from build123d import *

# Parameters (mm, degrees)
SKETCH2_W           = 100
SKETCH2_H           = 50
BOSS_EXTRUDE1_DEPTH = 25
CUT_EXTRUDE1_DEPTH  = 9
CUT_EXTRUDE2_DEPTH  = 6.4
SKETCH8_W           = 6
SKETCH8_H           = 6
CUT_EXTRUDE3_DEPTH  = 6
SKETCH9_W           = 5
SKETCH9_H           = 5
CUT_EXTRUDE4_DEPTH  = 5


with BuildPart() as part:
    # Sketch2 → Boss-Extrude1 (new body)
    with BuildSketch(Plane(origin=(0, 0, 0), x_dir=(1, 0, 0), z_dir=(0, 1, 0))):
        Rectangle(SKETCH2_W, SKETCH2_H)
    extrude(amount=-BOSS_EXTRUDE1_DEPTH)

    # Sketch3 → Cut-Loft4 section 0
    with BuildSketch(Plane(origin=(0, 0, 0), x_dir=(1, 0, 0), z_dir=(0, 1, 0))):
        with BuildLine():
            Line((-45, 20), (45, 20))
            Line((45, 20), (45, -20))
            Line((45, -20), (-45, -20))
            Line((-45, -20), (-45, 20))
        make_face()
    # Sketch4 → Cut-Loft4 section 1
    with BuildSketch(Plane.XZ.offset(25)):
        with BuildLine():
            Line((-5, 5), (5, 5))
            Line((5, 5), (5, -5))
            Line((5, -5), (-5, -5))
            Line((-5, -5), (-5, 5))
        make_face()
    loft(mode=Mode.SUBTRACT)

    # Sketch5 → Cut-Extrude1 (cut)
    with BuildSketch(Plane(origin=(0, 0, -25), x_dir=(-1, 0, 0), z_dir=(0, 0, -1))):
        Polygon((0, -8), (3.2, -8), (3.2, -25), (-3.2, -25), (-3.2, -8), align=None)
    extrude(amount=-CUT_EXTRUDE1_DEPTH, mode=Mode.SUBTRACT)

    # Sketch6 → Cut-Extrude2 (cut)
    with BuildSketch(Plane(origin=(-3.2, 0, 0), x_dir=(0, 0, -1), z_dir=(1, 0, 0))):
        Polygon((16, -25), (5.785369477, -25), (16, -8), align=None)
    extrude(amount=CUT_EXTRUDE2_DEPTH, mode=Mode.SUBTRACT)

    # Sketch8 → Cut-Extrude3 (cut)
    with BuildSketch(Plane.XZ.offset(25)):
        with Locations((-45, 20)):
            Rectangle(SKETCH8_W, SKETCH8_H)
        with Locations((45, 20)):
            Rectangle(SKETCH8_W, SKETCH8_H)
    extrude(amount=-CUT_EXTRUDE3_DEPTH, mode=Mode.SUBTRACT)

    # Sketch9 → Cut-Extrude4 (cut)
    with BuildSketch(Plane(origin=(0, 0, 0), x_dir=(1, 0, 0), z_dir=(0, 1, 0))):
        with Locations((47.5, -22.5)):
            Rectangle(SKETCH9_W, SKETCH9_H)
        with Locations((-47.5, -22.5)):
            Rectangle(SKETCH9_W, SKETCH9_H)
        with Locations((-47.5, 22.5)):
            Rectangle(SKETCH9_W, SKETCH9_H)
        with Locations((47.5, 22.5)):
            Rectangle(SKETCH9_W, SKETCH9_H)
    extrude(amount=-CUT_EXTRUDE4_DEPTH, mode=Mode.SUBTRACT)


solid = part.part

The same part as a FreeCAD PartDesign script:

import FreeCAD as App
import Part
import Sketcher
from FreeCAD import Vector
Q = App.Units.Quantity

doc = App.newDocument("Part")
body = doc.addObject("PartDesign::Body", "Body")

sketch1 = body.newObject("Sketcher::SketchObject", "Sketch")
sketch1.AttachmentSupport = (doc.getObject("XZ_Plane"), [""])
sketch1.MapMode = "FlatFace"
sketch1.addGeometry([
    Part.LineSegment(Vector(-50, -25, 0), Vector(-50, 25, 0)),
    Part.LineSegment(Vector(-50, 25, 0), Vector(50, 25, 0)),
    Part.LineSegment(Vector(50, 25, 0), Vector(50, -25, 0)),
    Part.LineSegment(Vector(50, -25, 0), Vector(-50, -25, 0)),
], False)
sketch1.addConstraint([
    Sketcher.Constraint("Coincident", 0, 2, 1, 1),
    Sketcher.Constraint("Coincident", 1, 2, 2, 1),
    Sketcher.Constraint("Coincident", 2, 2, 3, 1),
    Sketcher.Constraint("Coincident", 3, 2, 0, 1),
    Sketcher.Constraint("Vertical", 0),
    Sketcher.Constraint("Horizontal", 1),
    Sketcher.Constraint("Vertical", 2),
    Sketcher.Constraint("Horizontal", 3),
    Sketcher.Constraint("Symmetric", 0, 2, 2, 2, -1, 1),
    Sketcher.Constraint("DistanceX", 1, 1, 1, 2, Q("100 mm")),
    Sketcher.Constraint("DistanceY", 0, 1, 0, 2, Q("50 mm")),
])
pad1 = body.newObject("PartDesign::Pad", "Pad")
pad1.Profile = sketch1
pad1.Length = 25

sketch2 = body.newObject("Sketcher::SketchObject", "Sketch001")
sketch2.AttachmentSupport = (doc.getObject("XZ_Plane"), [""])
sketch2.MapMode = "FlatFace"
sketch2.addGeometry([
    Part.LineSegment(Vector(45, -20, 0), Vector(-45, -20, 0)),
    Part.LineSegment(Vector(-45, -20, 0), Vector(-45, 20, 0)),
    Part.LineSegment(Vector(-45, 20, 0), Vector(45, 20, 0)),
    Part.LineSegment(Vector(45, 20, 0), Vector(45, -20, 0)),
], False)
sketch2.addConstraint([
    Sketcher.Constraint("Coincident", 0, 2, 1, 1),
    Sketcher.Constraint("Coincident", 1, 2, 2, 1),
    Sketcher.Constraint("Coincident", 2, 2, 3, 1),
    Sketcher.Constraint("Coincident", 3, 2, 0, 1),
    Sketcher.Constraint("Horizontal", 0),
    Sketcher.Constraint("Vertical", 1),
    Sketcher.Constraint("Horizontal", 2),
    Sketcher.Constraint("Vertical", 3),
    Sketcher.Constraint("Symmetric", 0, 2, 2, 2, -1, 1),
    Sketcher.Constraint("DistanceX", 0, 2, 0, 1, Q("90 mm")),
    Sketcher.Constraint("DistanceY", 1, 1, 1, 2, Q("40 mm")),
])

sketch3 = body.newObject("Sketcher::SketchObject", "Sketch002")
sketch3.AttachmentSupport = (doc.getObject("XZ_Plane"), [""])
sketch3.MapMode = "FlatFace"
sketch3.AttachmentOffset = App.Placement(Vector(0, 0, 25), App.Rotation())
sketch3.addGeometry([
    Part.LineSegment(Vector(5, 5, 0), Vector(-5, 5, 0)),
    Part.LineSegment(Vector(-5, 5, 0), Vector(-5, -5, 0)),
    Part.LineSegment(Vector(-5, -5, 0), Vector(5, -5, 0)),
    Part.LineSegment(Vector(5, -5, 0), Vector(5, 5, 0)),
], False)
sketch3.addConstraint([
    Sketcher.Constraint("Coincident", 0, 2, 1, 1),
    Sketcher.Constraint("Coincident", 1, 2, 2, 1),
    Sketcher.Constraint("Coincident", 2, 2, 3, 1),
    Sketcher.Constraint("Coincident", 3, 2, 0, 1),
    Sketcher.Constraint("Horizontal", 0),
    Sketcher.Constraint("Vertical", 1),
    Sketcher.Constraint("Horizontal", 2),
    Sketcher.Constraint("Vertical", 3),
    Sketcher.Constraint("Symmetric", 0, 2, 2, 2, -1, 1),
    Sketcher.Constraint("Equal", 2, 1),
    Sketcher.Constraint("DistanceX", 0, 2, 0, 1, Q("10 mm")),
])

subtractiveloft = body.newObject("PartDesign::SubtractiveLoft", "SubtractiveLoft")
subtractiveloft.Profile = sketch2
subtractiveloft.Sections = [sketch3]

sketch4 = body.newObject("Sketcher::SketchObject", "Sketch003")
sketch4.AttachmentSupport = (doc.getObject("XY_Plane"), [""])
sketch4.MapMode = "FlatFace"
sketch4.AttachmentOffset = App.Placement(Vector(0, 0, -25), App.Rotation())
sketch4.addGeometry([
    Part.LineSegment(Vector(-3, -8, 0), Vector(3, -8, 0)),
    Part.LineSegment(Vector(3, -8, 0), Vector(3, -25, 0)),
    Part.LineSegment(Vector(3, -25, 0), Vector(-3, -25, 0)),
    Part.LineSegment(Vector(-3, -25, 0), Vector(-3, -8, 0)),
], False)
sketch4.addConstraint([
    Sketcher.Constraint("Coincident", 0, 2, 1, 1),
    Sketcher.Constraint("Coincident", 1, 2, 2, 1),
    Sketcher.Constraint("Coincident", 2, 2, 3, 1),
    Sketcher.Constraint("Coincident", 3, 2, 0, 1),
    Sketcher.Constraint("Horizontal", 0),
    Sketcher.Constraint("Vertical", 1),
    Sketcher.Constraint("Horizontal", 2),
    Sketcher.Constraint("Vertical", 3),
    Sketcher.Constraint("DistanceY", 1, 2, 1, 1, Q("17 mm")),
    Sketcher.Constraint("DistanceX", 0, 1, 0, 2, Q("6.4 mm")),
    Sketcher.Constraint("DistanceY", 0, 2, -1, 1, Q("8 mm")),
    Sketcher.Constraint("DistanceX", -1, 1, 0, 2, Q("3.2 mm")),
])
pocket1 = body.newObject("PartDesign::Pocket", "Pocket")
pocket1.Profile = sketch4
pocket1.Length = 9
pocket1.Reversed = True

sketch5 = body.newObject("Sketcher::SketchObject", "Sketch004")
sketch5.AttachmentSupport = (doc.getObject("YZ_Plane"), [""])
sketch5.MapMode = "FlatFace"
sketch5.AttachmentOffset = App.Placement(Vector(0, 0, -3.2), App.Rotation())
sketch5.addGeometry([
    Part.LineSegment(Vector(-25, -6, 0), Vector(-25, -16, 0)),
    Part.LineSegment(Vector(-25, -16, 0), Vector(-8, -16, 0)),
    Part.LineSegment(Vector(-8, -16, 0), Vector(-25, -6, 0)),
], False)
sketch5.addConstraint([
    Sketcher.Constraint("Coincident", 0, 2, 1, 1),
    Sketcher.Constraint("Coincident", 1, 2, 2, 1),
    Sketcher.Constraint("Coincident", 2, 2, 0, 1),
    Sketcher.Constraint("Vertical", 0),
    Sketcher.Constraint("Horizontal", 1),
    Sketcher.Constraint("DistanceX", 1, 1, 1, 2, Q("17 mm")),
    Sketcher.Constraint("Angle", 2, Q("149 deg")),
    Sketcher.Constraint("DistanceX", 0, 2, -1, 1, Q("25 mm")),
    Sketcher.Constraint("DistanceY", 0, 2, -1, 1, Q("16 mm")),
])
pocket2 = body.newObject("PartDesign::Pocket", "Pocket001")
pocket2.Profile = sketch5
pocket2.Length = 6.4
pocket2.Reversed = True

sketch6 = body.newObject("Sketcher::SketchObject", "Sketch005")
sketch6.AttachmentSupport = (doc.getObject("XZ_Plane"), [""])
sketch6.MapMode = "FlatFace"
sketch6.AttachmentOffset = App.Placement(Vector(0, 0, 25), App.Rotation())
sketch6.addGeometry([
    Part.LineSegment(Vector(-48, 23, 0), Vector(-48, 17, 0)),
    Part.LineSegment(Vector(-48, 17, 0), Vector(-42, 17, 0)),
    Part.LineSegment(Vector(-42, 17, 0), Vector(-42, 23, 0)),
    Part.LineSegment(Vector(-42, 23, 0), Vector(-48, 23, 0)),
    Part.LineSegment(Vector(42, 23, 0), Vector(42, 17, 0)),
    Part.LineSegment(Vector(42, 17, 0), Vector(48, 17, 0)),
    Part.LineSegment(Vector(48, 17, 0), Vector(48, 23, 0)),
    Part.LineSegment(Vector(48, 23, 0), Vector(42, 23, 0)),
], False)
sketch6.addConstraint([
    Sketcher.Constraint("Coincident", 0, 2, 1, 1),
    Sketcher.Constraint("Coincident", 1, 2, 2, 1),
    Sketcher.Constraint("Coincident", 2, 2, 3, 1),
    Sketcher.Constraint("Coincident", 3, 2, 0, 1),
    Sketcher.Constraint("Coincident", 4, 2, 5, 1),
    Sketcher.Constraint("Coincident", 5, 2, 6, 1),
    Sketcher.Constraint("Coincident", 6, 2, 7, 1),
    Sketcher.Constraint("Coincident", 7, 2, 4, 1),
    Sketcher.Constraint("Vertical", 0),
    Sketcher.Constraint("Horizontal", 1),
    Sketcher.Constraint("Vertical", 2),
    Sketcher.Constraint("Horizontal", 3),
    Sketcher.Constraint("Vertical", 4),
    Sketcher.Constraint("Horizontal", 5),
    Sketcher.Constraint("Vertical", 6),
    Sketcher.Constraint("Horizontal", 7),
    Sketcher.Constraint("Symmetric", 1, 2, 4, 2, -2),
    Sketcher.Constraint("Symmetric", 3, 2, 6, 2, -2),
    Sketcher.Constraint("Equal", 7, 0),
    Sketcher.Constraint("DistanceX", 1, 1, 1, 2, Q("6 mm")),
    Sketcher.Constraint("DistanceX", 0, 2, -1, 1, Q("48 mm")),
    Sketcher.Constraint("DistanceY", -1, 1, 0, 2, Q("17 mm")),
])
pocket3 = body.newObject("PartDesign::Pocket", "Pocket002")
pocket3.Profile = sketch6
pocket3.Length = 6

sketch7 = body.newObject("Sketcher::SketchObject", "Sketch006")
sketch7.AttachmentSupport = (doc.getObject("XZ_Plane"), [""])
sketch7.MapMode = "FlatFace"
sketch7.addGeometry([
    Part.LineSegment(Vector(45, 20, 0), Vector(45, 25, 0)),
    Part.LineSegment(Vector(45, 25, 0), Vector(50, 25, 0)),
    Part.LineSegment(Vector(50, 25, 0), Vector(50, 20, 0)),
    Part.LineSegment(Vector(50, 20, 0), Vector(45, 20, 0)),
    Part.LineSegment(Vector(-50, 20, 0), Vector(-50, 25, 0)),
    Part.LineSegment(Vector(-50, 25, 0), Vector(-45, 25, 0)),
    Part.LineSegment(Vector(-45, 25, 0), Vector(-45, 20, 0)),
    Part.LineSegment(Vector(-45, 20, 0), Vector(-50, 20, 0)),
    Part.LineSegment(Vector(-50, -25, 0), Vector(-50, -20, 0)),
    Part.LineSegment(Vector(-50, -20, 0), Vector(-45, -20, 0)),
    Part.LineSegment(Vector(-45, -20, 0), Vector(-45, -25, 0)),
    Part.LineSegment(Vector(-45, -25, 0), Vector(-50, -25, 0)),
    Part.LineSegment(Vector(45, -25, 0), Vector(45, -20, 0)),
    Part.LineSegment(Vector(45, -20, 0), Vector(50, -20, 0)),
    Part.LineSegment(Vector(50, -20, 0), Vector(50, -25, 0)),
    Part.LineSegment(Vector(50, -25, 0), Vector(45, -25, 0)),
], False)
sketch7.addConstraint([
    Sketcher.Constraint("Coincident", 0, 2, 1, 1),
    Sketcher.Constraint("Coincident", 1, 2, 2, 1),
    Sketcher.Constraint("Coincident", 2, 2, 3, 1),
    Sketcher.Constraint("Coincident", 3, 2, 0, 1),
    Sketcher.Constraint("Coincident", 4, 2, 5, 1),
    Sketcher.Constraint("Coincident", 5, 2, 6, 1),
    Sketcher.Constraint("Coincident", 6, 2, 7, 1),
    Sketcher.Constraint("Coincident", 7, 2, 4, 1),
    Sketcher.Constraint("Coincident", 8, 2, 9, 1),
    Sketcher.Constraint("Coincident", 9, 2, 10, 1),
    Sketcher.Constraint("Coincident", 10, 2, 11, 1),
    Sketcher.Constraint("Coincident", 11, 2, 8, 1),
    Sketcher.Constraint("Coincident", 12, 2, 13, 1),
    Sketcher.Constraint("Coincident", 13, 2, 14, 1),
    Sketcher.Constraint("Coincident", 14, 2, 15, 1),
    Sketcher.Constraint("Coincident", 15, 2, 12, 1),
    Sketcher.Constraint("Vertical", 0),
    Sketcher.Constraint("Horizontal", 1),
    Sketcher.Constraint("Vertical", 2),
    Sketcher.Constraint("Horizontal", 3),
    Sketcher.Constraint("Vertical", 4),
    Sketcher.Constraint("Horizontal", 5),
    Sketcher.Constraint("Vertical", 6),
    Sketcher.Constraint("Horizontal", 7),
    Sketcher.Constraint("Vertical", 8),
    Sketcher.Constraint("Horizontal", 9),
    Sketcher.Constraint("Vertical", 10),
    Sketcher.Constraint("Horizontal", 11),
    Sketcher.Constraint("Vertical", 12),
    Sketcher.Constraint("Horizontal", 13),
    Sketcher.Constraint("Vertical", 14),
    Sketcher.Constraint("Horizontal", 15),
    Sketcher.Constraint("Symmetric", 2, 2, 8, 2, -1, 1),
    Sketcher.Constraint("Symmetric", 0, 2, 10, 2, -1, 1),
    Sketcher.Constraint("Symmetric", 6, 2, 12, 2, -1, 1),
    Sketcher.Constraint("Symmetric", 4, 2, 14, 2, -1, 1),
    Sketcher.Constraint("Symmetric", 1, 2, 4, 2, -2),
    Sketcher.Constraint("Symmetric", 3, 2, 6, 2, -2),
    Sketcher.Constraint("Equal", 15, 0),
    Sketcher.Constraint("DistanceX", 1, 1, 1, 2, Q("5 mm")),
    Sketcher.Constraint("DistanceX", -1, 1, 0, 2, Q("45 mm")),
    Sketcher.Constraint("DistanceY", -1, 1, 0, 2, Q("25 mm")),
])
pocket4 = body.newObject("PartDesign::Pocket", "Pocket003")
pocket4.Profile = sketch7
pocket4.Length = 5
pocket4.Reversed = True

doc.recompute()
